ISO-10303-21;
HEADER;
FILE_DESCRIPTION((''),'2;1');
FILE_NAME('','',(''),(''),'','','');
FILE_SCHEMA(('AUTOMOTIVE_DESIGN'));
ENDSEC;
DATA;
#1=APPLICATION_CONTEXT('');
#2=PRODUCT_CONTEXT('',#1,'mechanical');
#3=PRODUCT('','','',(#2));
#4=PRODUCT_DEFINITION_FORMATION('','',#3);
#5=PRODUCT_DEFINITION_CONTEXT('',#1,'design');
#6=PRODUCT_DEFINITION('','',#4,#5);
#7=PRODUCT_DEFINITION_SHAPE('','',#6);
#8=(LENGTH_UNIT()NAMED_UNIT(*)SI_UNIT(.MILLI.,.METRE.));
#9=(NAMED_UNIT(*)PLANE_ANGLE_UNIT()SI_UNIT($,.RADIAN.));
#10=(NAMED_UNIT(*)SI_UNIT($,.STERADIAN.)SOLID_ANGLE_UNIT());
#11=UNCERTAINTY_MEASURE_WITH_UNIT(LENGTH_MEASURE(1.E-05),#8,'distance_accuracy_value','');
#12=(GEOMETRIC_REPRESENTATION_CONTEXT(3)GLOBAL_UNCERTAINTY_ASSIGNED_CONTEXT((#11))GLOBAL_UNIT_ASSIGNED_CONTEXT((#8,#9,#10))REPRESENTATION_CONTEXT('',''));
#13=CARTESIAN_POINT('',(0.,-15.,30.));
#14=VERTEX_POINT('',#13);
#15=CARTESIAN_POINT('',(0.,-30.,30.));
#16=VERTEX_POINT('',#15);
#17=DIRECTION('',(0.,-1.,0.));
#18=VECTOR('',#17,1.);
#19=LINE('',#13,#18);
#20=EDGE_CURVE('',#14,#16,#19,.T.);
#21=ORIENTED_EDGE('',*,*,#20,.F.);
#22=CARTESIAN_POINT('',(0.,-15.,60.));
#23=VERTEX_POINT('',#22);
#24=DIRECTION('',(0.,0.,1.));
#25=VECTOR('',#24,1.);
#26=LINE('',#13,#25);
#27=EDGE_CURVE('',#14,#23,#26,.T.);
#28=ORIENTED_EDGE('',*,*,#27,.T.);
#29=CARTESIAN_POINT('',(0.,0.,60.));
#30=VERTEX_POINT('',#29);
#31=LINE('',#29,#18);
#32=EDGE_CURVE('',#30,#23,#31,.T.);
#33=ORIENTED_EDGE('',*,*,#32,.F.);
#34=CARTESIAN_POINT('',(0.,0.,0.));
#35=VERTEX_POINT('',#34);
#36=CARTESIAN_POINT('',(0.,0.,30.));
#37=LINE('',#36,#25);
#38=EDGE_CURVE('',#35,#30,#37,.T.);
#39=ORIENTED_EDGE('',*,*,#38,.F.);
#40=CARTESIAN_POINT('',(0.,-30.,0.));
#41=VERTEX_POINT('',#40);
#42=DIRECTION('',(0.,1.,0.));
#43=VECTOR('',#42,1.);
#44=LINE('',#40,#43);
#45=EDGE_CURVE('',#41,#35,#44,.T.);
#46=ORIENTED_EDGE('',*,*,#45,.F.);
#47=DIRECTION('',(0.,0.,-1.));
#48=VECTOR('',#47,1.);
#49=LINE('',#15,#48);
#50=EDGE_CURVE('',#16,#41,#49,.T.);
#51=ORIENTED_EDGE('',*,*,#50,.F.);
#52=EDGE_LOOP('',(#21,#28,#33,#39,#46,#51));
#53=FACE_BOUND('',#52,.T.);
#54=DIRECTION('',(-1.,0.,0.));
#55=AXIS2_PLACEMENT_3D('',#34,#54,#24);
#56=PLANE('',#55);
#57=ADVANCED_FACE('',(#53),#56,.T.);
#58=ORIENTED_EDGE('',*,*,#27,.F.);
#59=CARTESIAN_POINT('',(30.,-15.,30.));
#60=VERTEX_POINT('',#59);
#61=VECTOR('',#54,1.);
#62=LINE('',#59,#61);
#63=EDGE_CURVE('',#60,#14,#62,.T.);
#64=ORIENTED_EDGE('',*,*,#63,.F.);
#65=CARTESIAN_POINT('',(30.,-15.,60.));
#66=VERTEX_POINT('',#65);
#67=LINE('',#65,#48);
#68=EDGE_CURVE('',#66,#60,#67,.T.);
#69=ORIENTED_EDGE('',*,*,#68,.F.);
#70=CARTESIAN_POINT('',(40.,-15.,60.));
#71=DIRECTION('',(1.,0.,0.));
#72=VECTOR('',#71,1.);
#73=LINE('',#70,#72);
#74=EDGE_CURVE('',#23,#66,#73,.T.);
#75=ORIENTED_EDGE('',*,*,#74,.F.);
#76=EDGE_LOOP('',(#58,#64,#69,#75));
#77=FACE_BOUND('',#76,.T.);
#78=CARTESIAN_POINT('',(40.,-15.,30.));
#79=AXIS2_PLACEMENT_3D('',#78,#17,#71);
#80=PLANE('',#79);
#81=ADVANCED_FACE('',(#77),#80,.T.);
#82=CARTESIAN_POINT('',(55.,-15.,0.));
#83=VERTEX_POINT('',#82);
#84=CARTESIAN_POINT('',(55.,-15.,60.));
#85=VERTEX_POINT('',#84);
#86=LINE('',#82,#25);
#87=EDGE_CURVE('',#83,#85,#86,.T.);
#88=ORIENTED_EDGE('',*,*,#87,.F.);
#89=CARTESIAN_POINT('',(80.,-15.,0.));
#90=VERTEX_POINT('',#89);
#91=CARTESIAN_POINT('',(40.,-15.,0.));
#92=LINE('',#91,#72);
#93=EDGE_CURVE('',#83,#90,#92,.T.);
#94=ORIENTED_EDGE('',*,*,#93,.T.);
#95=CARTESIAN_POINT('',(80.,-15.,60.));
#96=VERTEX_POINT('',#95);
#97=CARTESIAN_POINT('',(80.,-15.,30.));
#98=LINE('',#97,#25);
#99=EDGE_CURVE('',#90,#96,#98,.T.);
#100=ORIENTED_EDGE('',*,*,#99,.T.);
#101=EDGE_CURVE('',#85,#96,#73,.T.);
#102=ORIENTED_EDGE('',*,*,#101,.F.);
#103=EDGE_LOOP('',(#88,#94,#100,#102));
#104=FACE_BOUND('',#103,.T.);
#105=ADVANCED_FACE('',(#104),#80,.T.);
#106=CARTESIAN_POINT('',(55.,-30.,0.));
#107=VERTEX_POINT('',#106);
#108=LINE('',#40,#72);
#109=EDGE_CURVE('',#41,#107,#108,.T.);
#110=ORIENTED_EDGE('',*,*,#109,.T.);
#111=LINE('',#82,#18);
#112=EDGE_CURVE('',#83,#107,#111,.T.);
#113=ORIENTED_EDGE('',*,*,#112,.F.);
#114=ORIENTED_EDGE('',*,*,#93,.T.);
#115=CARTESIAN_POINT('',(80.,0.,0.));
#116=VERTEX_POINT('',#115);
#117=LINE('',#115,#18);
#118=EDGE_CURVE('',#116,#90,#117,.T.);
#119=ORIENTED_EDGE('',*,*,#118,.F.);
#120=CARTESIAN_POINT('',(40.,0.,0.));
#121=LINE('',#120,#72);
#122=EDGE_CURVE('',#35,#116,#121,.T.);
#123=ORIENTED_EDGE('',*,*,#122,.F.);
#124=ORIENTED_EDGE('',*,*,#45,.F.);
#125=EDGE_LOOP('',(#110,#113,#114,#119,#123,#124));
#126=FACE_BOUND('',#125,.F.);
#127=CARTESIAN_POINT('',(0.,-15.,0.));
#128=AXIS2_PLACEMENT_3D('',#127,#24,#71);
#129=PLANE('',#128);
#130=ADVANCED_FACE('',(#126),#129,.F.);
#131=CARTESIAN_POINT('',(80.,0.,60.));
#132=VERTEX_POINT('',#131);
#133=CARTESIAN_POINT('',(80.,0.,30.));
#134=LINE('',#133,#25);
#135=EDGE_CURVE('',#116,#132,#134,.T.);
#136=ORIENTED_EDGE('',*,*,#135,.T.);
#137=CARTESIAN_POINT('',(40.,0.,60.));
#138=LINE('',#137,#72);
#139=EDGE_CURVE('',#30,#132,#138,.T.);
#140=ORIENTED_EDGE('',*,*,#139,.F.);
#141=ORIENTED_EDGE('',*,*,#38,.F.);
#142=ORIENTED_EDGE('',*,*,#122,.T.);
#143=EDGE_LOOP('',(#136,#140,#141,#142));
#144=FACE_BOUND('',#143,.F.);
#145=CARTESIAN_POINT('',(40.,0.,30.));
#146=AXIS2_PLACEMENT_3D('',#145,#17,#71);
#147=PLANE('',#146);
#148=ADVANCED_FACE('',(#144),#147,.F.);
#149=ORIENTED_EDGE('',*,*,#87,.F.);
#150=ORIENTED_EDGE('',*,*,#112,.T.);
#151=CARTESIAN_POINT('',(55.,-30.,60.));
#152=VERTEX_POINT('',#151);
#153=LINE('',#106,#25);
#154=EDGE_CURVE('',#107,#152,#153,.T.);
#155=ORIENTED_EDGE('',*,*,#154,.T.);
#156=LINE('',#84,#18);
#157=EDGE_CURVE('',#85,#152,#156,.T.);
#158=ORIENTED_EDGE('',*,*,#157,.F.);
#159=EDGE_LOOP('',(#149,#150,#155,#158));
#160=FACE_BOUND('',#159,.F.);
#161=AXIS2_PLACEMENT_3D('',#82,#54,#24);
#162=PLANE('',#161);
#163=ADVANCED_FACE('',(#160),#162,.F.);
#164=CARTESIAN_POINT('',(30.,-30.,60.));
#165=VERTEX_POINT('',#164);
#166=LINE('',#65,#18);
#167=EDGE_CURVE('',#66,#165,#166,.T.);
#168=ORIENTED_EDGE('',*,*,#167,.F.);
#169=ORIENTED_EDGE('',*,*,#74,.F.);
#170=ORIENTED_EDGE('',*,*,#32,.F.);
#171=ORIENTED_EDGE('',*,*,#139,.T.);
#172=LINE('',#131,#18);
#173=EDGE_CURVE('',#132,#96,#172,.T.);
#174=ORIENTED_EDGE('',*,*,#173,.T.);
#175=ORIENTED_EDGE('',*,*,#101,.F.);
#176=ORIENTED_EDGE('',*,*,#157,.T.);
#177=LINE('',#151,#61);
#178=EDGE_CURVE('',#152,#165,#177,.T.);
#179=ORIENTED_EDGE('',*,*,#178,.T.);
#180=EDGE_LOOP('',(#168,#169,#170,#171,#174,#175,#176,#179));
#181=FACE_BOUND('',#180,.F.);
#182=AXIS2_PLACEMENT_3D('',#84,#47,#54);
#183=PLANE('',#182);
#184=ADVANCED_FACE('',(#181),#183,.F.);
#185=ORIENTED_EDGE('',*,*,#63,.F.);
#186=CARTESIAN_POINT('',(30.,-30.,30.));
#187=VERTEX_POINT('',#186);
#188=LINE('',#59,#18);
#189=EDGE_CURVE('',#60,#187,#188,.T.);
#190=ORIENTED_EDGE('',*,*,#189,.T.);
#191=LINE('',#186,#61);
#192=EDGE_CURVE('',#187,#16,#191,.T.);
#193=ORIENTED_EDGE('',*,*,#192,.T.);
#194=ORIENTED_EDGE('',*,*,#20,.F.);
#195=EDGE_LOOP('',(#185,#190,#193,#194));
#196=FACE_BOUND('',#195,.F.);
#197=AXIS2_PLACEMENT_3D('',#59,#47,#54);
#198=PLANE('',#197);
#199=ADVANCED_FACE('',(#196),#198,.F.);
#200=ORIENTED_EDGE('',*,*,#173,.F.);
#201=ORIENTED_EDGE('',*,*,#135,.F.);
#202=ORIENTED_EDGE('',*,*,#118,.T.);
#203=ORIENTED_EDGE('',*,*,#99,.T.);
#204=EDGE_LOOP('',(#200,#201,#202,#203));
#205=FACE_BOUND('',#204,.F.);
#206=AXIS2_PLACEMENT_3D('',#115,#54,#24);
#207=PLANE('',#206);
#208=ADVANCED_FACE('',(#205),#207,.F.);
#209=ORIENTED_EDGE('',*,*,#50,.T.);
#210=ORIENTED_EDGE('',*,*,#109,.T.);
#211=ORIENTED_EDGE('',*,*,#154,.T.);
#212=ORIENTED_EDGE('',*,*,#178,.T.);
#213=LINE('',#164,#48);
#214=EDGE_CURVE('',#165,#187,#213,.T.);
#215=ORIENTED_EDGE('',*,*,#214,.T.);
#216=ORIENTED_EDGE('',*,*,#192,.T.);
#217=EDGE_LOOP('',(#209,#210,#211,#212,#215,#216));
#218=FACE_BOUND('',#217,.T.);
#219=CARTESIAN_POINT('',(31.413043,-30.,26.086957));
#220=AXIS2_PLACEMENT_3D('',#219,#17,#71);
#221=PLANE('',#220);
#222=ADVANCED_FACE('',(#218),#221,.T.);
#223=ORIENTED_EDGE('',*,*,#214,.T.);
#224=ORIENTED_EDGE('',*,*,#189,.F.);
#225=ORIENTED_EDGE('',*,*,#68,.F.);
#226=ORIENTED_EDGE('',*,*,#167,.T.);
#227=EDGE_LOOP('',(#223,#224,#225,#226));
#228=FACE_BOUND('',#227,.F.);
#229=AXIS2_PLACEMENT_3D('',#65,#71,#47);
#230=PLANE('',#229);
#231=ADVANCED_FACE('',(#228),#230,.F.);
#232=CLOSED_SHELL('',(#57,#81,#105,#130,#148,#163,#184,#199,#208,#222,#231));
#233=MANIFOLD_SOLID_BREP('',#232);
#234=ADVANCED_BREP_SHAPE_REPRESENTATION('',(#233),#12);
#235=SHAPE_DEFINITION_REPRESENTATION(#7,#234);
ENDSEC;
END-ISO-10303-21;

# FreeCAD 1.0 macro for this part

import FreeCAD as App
import Part
import Sketcher
from FreeCAD import Vector
Q = App.Units.Quantity

doc = App.newDocument("Part")
body = doc.addObject("PartDesign::Body", "Body")

# Sketch on XZ plane
sketch1 = body.newObject("Sketcher::SketchObject", "Sketch")
sketch1.AttachmentSupport = (doc.getObject("XZ_Plane"), [""])
sketch1.MapMode = "FlatFace"
sketch1.addGeometry([
    Part.LineSegment(Vector(0, 60, 0), Vector(0, 0, 0)),
    Part.LineSegment(Vector(0, 0, 0), Vector(80, 0, 0)),
    Part.LineSegment(Vector(80, 0, 0), Vector(80, 60, 0)),
    Part.LineSegment(Vector(80, 60, 0), Vector(0, 60, 0)),
], False)
sketch1.addConstraint([
    Sketcher.Constraint("Coincident", 0, 2, 1, 1),
    Sketcher.Constraint("Coincident", 1, 2, 2, 1),
    Sketcher.Constraint("Coincident", 2, 2, 3, 1),
    Sketcher.Constraint("Coincident", 3, 2, 0, 1),
    Sketcher.Constraint("Vertical", 0),
    Sketcher.Constraint("Horizontal", 1),
    Sketcher.Constraint("Vertical", 2),
    Sketcher.Constraint("Horizontal", 3),
    Sketcher.Constraint("Coincident", 0, 2, -1, 1),
    Sketcher.Constraint("DistanceX", 1, 1, 1, 2, Q("80 mm")),
    Sketcher.Constraint("DistanceY", 0, 2, 0, 1, Q("60 mm")),
])
pad1 = body.newObject("PartDesign::Pad", "Pad")
pad1.Profile = sketch1
pad1.Length = 15

# Sketch on XZ plane
sketch2 = body.newObject("Sketcher::SketchObject", "Sketch001")
sketch2.AttachmentSupport = (doc.getObject("XZ_Plane"), [""])
sketch2.MapMode = "FlatFace"
sketch2.AttachmentOffset = App.Placement(Vector(0, 0, 15), App.Rotation())
sketch2.addGeometry([
    Part.LineSegment(Vector(55, 60, 0), Vector(30, 60, 0)),  # 0
    Part.LineSegment(Vector(30, 60, 0), Vector(30, 30, 0)),  # 1
    Part.LineSegment(Vector(30, 30, 0), Vector(0, 30, 0)),  # 2
    Part.LineSegment(Vector(0, 30, 0), Vector(0, 0, 0)),  # 3
    Part.LineSegment(Vector(0, 0, 0), Vector(55, 0, 0)),  # 4
    Part.LineSegment(Vector(55, 0, 0), Vector(55, 60, 0)),  # 5
], False)
sketch2.addConstraint([
    Sketcher.Constraint("Coincident", 0, 2, 1, 1),
    Sketcher.Constraint("Coincident", 1, 2, 2, 1),
    Sketcher.Constraint("Coincident", 2, 2, 3, 1),
    Sketcher.Constraint("Coincident", 3, 2, 4, 1),
    Sketcher.Constraint("Coincident", 4, 2, 5, 1),
    Sketcher.Constraint("Coincident", 5, 2, 0, 1),
    Sketcher.Constraint("Horizontal", 0),
    Sketcher.Constraint("Vertical", 1),
    Sketcher.Constraint("Horizontal", 2),
    Sketcher.Constraint("Vertical", 3),
    Sketcher.Constraint("Horizontal", 4),
    Sketcher.Constraint("Vertical", 5),
    Sketcher.Constraint("Coincident", 3, 2, -1, 1),
    Sketcher.Constraint("Equal", 2, 1),
    Sketcher.Constraint("Equal", 1, 3),
    Sketcher.Constraint("DistanceX", 0, 2, 0, 1, Q("25 mm")),
    Sketcher.Constraint("DistanceX", 2, 2, 2, 1, Q("30 mm")),
])
pad2 = body.newObject("PartDesign::Pad", "Pad001")
pad2.Profile = sketch2
pad2.Length = 15

doc.recompute()
